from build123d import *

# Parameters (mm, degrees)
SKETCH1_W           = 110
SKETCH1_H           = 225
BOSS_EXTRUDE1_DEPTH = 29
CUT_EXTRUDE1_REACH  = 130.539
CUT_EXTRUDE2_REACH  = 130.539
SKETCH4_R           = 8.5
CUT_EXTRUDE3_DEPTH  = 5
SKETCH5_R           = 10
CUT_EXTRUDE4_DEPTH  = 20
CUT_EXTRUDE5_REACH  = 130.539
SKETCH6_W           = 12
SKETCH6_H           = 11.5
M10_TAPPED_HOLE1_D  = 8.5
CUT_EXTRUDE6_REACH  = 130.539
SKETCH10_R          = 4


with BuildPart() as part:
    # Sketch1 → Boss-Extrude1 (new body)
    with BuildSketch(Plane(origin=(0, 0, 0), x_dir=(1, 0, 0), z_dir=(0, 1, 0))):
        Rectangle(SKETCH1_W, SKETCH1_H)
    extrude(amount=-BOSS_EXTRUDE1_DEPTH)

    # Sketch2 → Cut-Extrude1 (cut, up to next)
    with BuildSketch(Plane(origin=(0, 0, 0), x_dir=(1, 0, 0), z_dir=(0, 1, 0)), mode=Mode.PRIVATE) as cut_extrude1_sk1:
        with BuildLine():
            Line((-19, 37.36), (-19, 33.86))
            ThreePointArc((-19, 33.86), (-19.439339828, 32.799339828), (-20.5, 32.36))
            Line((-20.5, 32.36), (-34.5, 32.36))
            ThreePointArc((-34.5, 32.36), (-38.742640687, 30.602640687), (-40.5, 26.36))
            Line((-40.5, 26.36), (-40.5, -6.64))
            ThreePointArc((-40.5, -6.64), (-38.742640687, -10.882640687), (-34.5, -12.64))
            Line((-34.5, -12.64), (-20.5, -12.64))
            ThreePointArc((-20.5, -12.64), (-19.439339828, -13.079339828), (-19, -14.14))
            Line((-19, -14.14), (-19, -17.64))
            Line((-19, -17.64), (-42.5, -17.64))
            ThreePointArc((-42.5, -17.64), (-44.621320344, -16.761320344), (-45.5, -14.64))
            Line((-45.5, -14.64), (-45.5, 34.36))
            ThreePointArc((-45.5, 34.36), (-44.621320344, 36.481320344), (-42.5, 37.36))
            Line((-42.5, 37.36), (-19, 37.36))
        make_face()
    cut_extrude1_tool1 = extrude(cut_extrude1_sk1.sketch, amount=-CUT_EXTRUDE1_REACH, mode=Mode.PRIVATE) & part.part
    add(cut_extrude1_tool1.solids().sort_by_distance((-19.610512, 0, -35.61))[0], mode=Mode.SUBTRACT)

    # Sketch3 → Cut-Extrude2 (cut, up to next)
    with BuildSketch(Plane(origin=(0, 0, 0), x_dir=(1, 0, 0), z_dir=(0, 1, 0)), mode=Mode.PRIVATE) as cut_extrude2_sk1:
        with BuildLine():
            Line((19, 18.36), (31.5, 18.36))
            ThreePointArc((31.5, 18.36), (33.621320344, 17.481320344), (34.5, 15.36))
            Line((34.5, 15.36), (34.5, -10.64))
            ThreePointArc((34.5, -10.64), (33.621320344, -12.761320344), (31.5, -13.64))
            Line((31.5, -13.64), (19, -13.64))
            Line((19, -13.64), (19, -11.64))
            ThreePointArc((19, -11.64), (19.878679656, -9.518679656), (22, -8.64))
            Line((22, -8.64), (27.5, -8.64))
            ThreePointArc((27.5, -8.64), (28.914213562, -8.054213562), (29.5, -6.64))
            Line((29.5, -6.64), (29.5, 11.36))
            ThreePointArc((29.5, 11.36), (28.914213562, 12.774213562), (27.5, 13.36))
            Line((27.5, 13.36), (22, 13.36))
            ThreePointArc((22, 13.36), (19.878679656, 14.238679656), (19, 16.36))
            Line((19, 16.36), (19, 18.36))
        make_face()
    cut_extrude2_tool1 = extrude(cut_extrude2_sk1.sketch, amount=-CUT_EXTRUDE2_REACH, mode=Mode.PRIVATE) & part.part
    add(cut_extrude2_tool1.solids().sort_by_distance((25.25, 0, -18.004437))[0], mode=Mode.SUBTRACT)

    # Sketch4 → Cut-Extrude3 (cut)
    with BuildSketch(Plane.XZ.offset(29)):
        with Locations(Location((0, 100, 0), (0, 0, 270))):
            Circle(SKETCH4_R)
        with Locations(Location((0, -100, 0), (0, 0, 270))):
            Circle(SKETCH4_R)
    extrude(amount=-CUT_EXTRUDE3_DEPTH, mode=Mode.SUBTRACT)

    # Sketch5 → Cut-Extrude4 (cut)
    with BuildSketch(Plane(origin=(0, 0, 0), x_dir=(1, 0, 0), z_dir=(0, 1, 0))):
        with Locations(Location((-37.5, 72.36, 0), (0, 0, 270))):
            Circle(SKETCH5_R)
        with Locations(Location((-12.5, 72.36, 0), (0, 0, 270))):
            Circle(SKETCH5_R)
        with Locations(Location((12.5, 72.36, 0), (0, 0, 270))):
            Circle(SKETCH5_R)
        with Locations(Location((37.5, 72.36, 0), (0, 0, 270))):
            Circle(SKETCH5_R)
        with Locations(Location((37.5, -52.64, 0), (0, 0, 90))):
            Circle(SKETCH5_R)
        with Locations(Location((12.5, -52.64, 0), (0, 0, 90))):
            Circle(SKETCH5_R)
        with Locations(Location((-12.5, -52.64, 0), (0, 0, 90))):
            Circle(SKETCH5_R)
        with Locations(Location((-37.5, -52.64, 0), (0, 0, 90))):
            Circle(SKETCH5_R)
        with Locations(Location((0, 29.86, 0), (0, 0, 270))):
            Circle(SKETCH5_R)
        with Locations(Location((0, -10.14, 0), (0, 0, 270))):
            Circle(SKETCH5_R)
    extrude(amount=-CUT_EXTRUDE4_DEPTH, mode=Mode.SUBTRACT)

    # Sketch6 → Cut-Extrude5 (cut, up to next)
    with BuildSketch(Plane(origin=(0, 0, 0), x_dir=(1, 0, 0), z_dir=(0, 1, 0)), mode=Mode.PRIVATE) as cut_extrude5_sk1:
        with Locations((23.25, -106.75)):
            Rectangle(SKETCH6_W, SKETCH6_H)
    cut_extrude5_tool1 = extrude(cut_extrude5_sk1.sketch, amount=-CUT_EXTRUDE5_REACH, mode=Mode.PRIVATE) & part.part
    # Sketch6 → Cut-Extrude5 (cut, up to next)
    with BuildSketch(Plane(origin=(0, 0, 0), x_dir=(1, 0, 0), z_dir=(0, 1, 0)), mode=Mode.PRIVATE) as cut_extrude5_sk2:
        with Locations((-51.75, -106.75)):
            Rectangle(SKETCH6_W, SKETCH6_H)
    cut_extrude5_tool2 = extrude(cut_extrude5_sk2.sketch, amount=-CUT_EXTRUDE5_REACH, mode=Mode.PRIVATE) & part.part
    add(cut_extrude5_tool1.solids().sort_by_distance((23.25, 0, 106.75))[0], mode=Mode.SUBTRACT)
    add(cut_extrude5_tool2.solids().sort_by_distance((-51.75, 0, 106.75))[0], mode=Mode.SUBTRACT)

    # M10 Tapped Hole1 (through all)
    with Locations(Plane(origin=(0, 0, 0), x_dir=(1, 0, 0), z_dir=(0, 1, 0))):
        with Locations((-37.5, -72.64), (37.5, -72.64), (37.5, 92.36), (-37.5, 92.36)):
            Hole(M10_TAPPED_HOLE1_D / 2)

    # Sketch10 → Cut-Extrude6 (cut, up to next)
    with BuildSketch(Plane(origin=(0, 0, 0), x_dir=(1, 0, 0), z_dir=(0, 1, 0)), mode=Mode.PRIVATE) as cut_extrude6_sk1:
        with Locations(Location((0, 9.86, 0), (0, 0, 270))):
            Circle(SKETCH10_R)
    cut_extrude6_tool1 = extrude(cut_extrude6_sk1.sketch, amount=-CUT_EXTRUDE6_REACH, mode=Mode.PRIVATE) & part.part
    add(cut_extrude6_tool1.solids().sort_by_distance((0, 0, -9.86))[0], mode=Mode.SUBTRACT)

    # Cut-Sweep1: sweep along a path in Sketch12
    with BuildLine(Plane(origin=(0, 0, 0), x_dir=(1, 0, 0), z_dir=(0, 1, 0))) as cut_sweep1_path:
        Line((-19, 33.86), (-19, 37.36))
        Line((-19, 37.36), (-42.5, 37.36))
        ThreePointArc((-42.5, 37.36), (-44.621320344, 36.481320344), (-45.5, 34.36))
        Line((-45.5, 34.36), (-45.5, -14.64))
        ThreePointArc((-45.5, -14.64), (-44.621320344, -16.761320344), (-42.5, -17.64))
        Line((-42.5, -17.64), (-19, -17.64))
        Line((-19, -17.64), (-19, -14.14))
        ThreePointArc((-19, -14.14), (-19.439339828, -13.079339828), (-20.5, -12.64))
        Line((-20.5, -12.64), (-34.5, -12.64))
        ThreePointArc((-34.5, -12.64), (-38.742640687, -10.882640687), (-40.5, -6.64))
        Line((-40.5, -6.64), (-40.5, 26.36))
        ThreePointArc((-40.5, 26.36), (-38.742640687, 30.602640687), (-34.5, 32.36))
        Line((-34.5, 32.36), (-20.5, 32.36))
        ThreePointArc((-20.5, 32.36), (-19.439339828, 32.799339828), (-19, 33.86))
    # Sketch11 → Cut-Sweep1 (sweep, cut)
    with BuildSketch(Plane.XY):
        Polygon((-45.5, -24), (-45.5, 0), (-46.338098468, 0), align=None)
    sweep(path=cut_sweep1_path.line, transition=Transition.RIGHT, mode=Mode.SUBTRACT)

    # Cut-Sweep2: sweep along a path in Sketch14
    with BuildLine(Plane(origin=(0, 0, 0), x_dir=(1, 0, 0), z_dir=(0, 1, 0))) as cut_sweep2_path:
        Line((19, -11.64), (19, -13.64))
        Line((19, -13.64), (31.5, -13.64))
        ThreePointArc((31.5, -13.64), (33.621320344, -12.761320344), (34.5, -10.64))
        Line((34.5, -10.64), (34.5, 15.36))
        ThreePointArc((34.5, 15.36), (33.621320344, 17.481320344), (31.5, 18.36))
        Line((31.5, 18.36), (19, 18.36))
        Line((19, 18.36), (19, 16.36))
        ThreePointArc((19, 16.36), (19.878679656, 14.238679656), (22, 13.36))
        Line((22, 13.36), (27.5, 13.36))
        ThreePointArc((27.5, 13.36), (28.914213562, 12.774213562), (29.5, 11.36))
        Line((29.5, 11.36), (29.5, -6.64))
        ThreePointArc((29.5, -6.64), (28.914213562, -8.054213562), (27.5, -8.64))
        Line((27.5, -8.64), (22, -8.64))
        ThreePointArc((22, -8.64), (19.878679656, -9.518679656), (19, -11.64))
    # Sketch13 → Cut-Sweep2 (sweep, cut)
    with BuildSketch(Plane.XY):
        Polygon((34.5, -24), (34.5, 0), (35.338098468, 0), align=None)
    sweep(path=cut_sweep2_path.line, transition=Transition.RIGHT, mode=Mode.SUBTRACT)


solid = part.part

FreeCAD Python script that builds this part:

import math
import FreeCAD as App
import Part
import Sketcher
from FreeCAD import Vector
Q = App.Units.Quantity


def add_polygon(sketch, points):
    """Adds a closed chain of lines whose ends are joined by coincident constraints."""
    first, n = sketch.GeometryCount, len(points)
    for a, b in zip(points, points[1:] + points[:1]):
        sketch.addGeometry(Part.LineSegment(App.Vector(*a, 0), App.Vector(*b, 0)), False)
    for i in range(n):
        sketch.addConstraint(Sketcher.Constraint("Coincident", first + i, 2, first + (i + 1) % n, 1))

doc = App.newDocument("Part")
body = doc.addObject("PartDesign::Body", "Body")

sketch1 = doc.addObject("Sketcher::SketchObject", "Sketch")
body.addObject(sketch1)
sketch1.AttachmentSupport = (doc.XZ_Plane, [""])
sketch1.MapMode = "FlatFace"
add_polygon(sketch1, [(-55, -112), (-55, 112), (55, 112), (55, -112)])
sketch1.addConstraint(Sketcher.Constraint("Vertical", 0))
sketch1.addConstraint(Sketcher.Constraint("Horizontal", 1))
sketch1.addConstraint(Sketcher.Constraint("Vertical", 2))
sketch1.addConstraint(Sketcher.Constraint("Horizontal", 3))
sketch1.addConstraint(Sketcher.Constraint("Symmetric", 0, 2, 2, 2, -1, 1))
sketch1.addConstraint(Sketcher.Constraint("DistanceX", 1, 1, 1, 2, 110.0))
sketch1.addConstraint(Sketcher.Constraint("DistanceY", 0, 1, 0, 2, 225.0))
pad1 = doc.addObject("PartDesign::Pad", "Pad")
body.addObject(pad1)
pad1.Profile = sketch1
pad1.Length = 29

sketch2 = doc.addObject("Sketcher::SketchObject", "Sketch001")
body.addObject(sketch2)
sketch2.AttachmentSupport = (doc.XZ_Plane, [""])
sketch2.MapMode = "FlatFace"
sketch2.addGeometry(Part.LineSegment(Vector(-19, -33.9, 0), Vector(-19, -37.4, 0)), False)
sketch2.addGeometry(Part.LineSegment(Vector(-19, -37.4, 0), Vector(-42.5, -37.4, 0)), False)
sketch2.addGeometry(Part.ArcOfCircle(Part.Circle(Vector(-42.5, -34.4, 0), Vector(0, 0, 1), 3), math.radians(180), math.radians(270)), False)
sketch2.addGeometry(Part.LineSegment(Vector(-45.5, -34.4, 0), Vector(-45.5, 14.6, 0)), False)
sketch2.addGeometry(Part.ArcOfCircle(Part.Circle(Vector(-42.5, 14.6, 0), Vector(0, 0, 1), 3), math.radians(90), math.radians(180)), False)
sketch2.addGeometry(Part.LineSegment(Vector(-42.5, 17.6, 0), Vector(-19, 17.6, 0)), False)
sketch2.addGeometry(Part.LineSegment(Vector(-19, 17.6, 0), Vector(-19, 14.1, 0)), False)
sketch2.addGeometry(Part.ArcOfCircle(Part.Circle(Vector(-20.5, 14.1, 0), Vector(0, 0, 1), 1.5), math.radians(-90), math.radians(0)), False)
sketch2.addGeometry(Part.LineSegment(Vector(-20.5, 12.6, 0), Vector(-34.5, 12.6, 0)), False)
sketch2.addGeometry(Part.ArcOfCircle(Part.Circle(Vector(-34.5, 6.6, 0), Vector(0, 0, 1), 6), math.radians(90), math.radians(180)), False)
sketch2.addGeometry(Part.LineSegment(Vector(-40.5, 6.6, 0), Vector(-40.5, -26.4, 0)), False)
sketch2.addGeometry(Part.ArcOfCircle(Part.Circle(Vector(-34.5, -26.4, 0), Vector(0, 0, 1), 6), math.radians(180), math.radians(270)), False)
sketch2.addGeometry(Part.LineSegment(Vector(-34.5, -32.4, 0), Vector(-20.5, -32.4, 0)), False)
sketch2.addGeometry(Part.ArcOfCircle(Part.Circle(Vector(-20.5, -33.9, 0), Vector(0, 0, 1), 1.5), math.radians(0), math.radians(90)), False)
sketch2.addConstraint(Sketcher.Constraint("Coincident", 0, 2, 1, 1))
sketch2.addConstraint(Sketcher.Constraint("Tangent", 1, 2, 2, 2))
sketch2.addConstraint(Sketcher.Constraint("Tangent", 2, 1, 3, 1))
sketch2.addConstraint(Sketcher.Constraint("Tangent", 3, 2, 4, 2))
sketch2.addConstraint(Sketcher.Constraint("Tangent", 4, 1, 5, 1))
sketch2.addConstraint(Sketcher.Constraint("Coincident", 5, 2, 6, 1))
sketch2.addConstraint(Sketcher.Constraint("Tangent", 6, 2, 7, 2))
sketch2.addConstraint(Sketcher.Constraint("Tangent", 7, 1, 8, 1))
sketch2.addConstraint(Sketcher.Constraint("Tangent", 8, 2, 9, 1))
sketch2.addConstraint(Sketcher.Constraint("Tangent", 9, 2, 10, 1))
sketch2.addConstraint(Sketcher.Constraint("Tangent", 10, 2, 11, 1))
sketch2.addConstraint(Sketcher.Constraint("Tangent", 11, 2, 12, 1))
sketch2.addConstraint(Sketcher.Constraint("Tangent", 12, 2, 13, 2))
sketch2.addConstraint(Sketcher.Constraint("Tangent", 13, 1, 0, 1))
sketch2.addConstraint(Sketcher.Constraint("Vertical", 0))
sketch2.addConstraint(Sketcher.Constraint("Horizontal", 1))
sketch2.addConstraint(Sketcher.Constraint("Vertical", 3))
sketch2.addConstraint(Sketcher.Constraint("Horizontal", 5))
sketch2.addConstraint(Sketcher.Constraint("Vertical", 6))
sketch2.addConstraint(Sketcher.Constraint("Horizontal", 8))
sketch2.addConstraint(Sketcher.Constraint("Vertical", 10))
sketch2.addConstraint(Sketcher.Constraint("Horizontal", 12))
sketch2.addConstraint(Sketcher.Constraint("Equal", 2, 4))
sketch2.addConstraint(Sketcher.Constraint("Equal", 9, 11))
sketch2.addConstraint(Sketcher.Constraint("Equal", 7, 13))
sketch2.addConstraint(Sketcher.Constraint("Vertical", 7, 3, 13, 3))
sketch2.addConstraint(Sketcher.Constraint("Equal", 0, 6))
sketch2.addConstraint(Sketcher.Constraint("Radius", 2, 3.0))
sketch2.addConstraint(Sketcher.Constraint("Radius", 9, 6.0))
sketch2.addConstraint(Sketcher.Constraint("Radius", 7, 1.5))
sketch2.addConstraint(Sketcher.Constraint("DistanceX", 8, 2, 8, 1, 14.0))
sketch2.addConstraint(Sketcher.Constraint("DistanceY", 3, 1, 3, 2, 49.0))
sketch2.addConstraint(Sketcher.Constraint("DistanceY", 10, 2, 10, 1, 33.0))
sketch2.addConstraint(Sketcher.Constraint("DistanceX", 1, 2, 1, 1, 23.5))
sketch2.addConstraint(Sketcher.Constraint("DistanceX", 0, 2, -1, 1, 19.0))
sketch2.addConstraint(Sketcher.Constraint("DistanceY", 2, 3, -1, 1, 34.36))
pocket1 = doc.addObject("PartDesign::Pocket", "Pocket")
body.addObject(pocket1)
pocket1.Profile = sketch2
pocket1.Type = "UpToFirst"
pocket1.Reversed = True

sketch3 = doc.addObject("Sketcher::SketchObject", "Sketch002")
body.addObject(sketch3)
sketch3.AttachmentSupport = (doc.XZ_Plane, [""])
sketch3.MapMode = "FlatFace"
sketch3.addGeometry(Part.LineSegment(Vector(31.5, -18.4, 0), Vector(19, -18.4, 0)), False)
sketch3.addGeometry(Part.LineSegment(Vector(19, -18.4, 0), Vector(19, -16.4, 0)), False)
sketch3.addGeometry(Part.ArcOfCircle(Part.Circle(Vector(22, -16.4, 0), Vector(0, 0, 1), 3), math.radians(90), math.radians(180)), False)
sketch3.addGeometry(Part.LineSegment(Vector(22, -13.4, 0), Vector(27.5, -13.4, 0)), False)
sketch3.addGeometry(Part.ArcOfCircle(Part.Circle(Vector(27.5, -11.4, 0), Vector(0, 0, 1), 2), math.radians(-90), math.radians(0)), False)
sketch3.addGeometry(Part.LineSegment(Vector(29.5, -11.4, 0), Vector(29.5, 6.6, 0)), False)
sketch3.addGeometry(Part.ArcOfCircle(Part.Circle(Vector(27.5, 6.6, 0), Vector(0, 0, 1), 2), math.radians(0), math.radians(90)), False)
sketch3.addGeometry(Part.LineSegment(Vector(27.5, 8.6, 0), Vector(22, 8.6, 0)), False)
sketch3.addGeometry(Part.ArcOfCircle(Part.Circle(Vector(22, 11.6, 0), Vector(0, 0, 1), 3), math.radians(180), math.radians(270)), False)
sketch3.addGeometry(Part.LineSegment(Vector(19, 11.6, 0), Vector(19, 13.6, 0)), False)
sketch3.addGeometry(Part.LineSegment(Vector(19, 13.6, 0), Vector(31.5, 13.6, 0)), False)
sketch3.addGeometry(Part.ArcOfCircle(Part.Circle(Vector(31.5, 10.6, 0), Vector(0, 0, 1), 3), math.radians(0), math.radians(90)), False)
sketch3.addGeometry(Part.LineSegment(Vector(34.5, 10.6, 0), Vector(34.5, -15.4, 0)), False)
sketch3.addGeometry(Part.ArcOfCircle(Part.Circle(Vector(31.5, -15.4, 0), Vector(0, 0, 1), 3), math.radians(-90), math.radians(0)), False)
sketch3.addConstraint(Sketcher.Constraint("Coincident", 0, 2, 1, 1))
sketch3.addConstraint(Sketcher.Constraint("Tangent", 1, 2, 2, 2))
sketch3.addConstraint(Sketcher.Constraint("Tangent", 2, 1, 3, 1))
sketch3.addConstraint(Sketcher.Constraint("Tangent", 3, 2, 4, 1))
sketch3.addConstraint(Sketcher.Constraint("Tangent", 4, 2, 5, 1))
sketch3.addConstraint(Sketcher.Constraint("Tangent", 5, 2, 6, 1))
sketch3.addConstraint(Sketcher.Constraint("Tangent", 6, 2, 7, 1))
sketch3.addConstraint(Sketcher.Constraint("Tangent", 7, 2, 8, 2))
sketch3.addConstraint(Sketcher.Constraint("Tangent", 8, 1, 9, 1))
sketch3.addConstraint(Sketcher.Constraint("Coincident", 9, 2, 10, 1))
sketch3.addConstraint(Sketcher.Constraint("Tangent", 10, 2, 11, 2))
sketch3.addConstraint(Sketcher.Constraint("Tangent", 11, 1, 12, 1))
sketch3.addConstraint(Sketcher.Constraint("Tangent", 12, 2, 13, 2))
sketch3.addConstraint(Sketcher.Constraint("Tangent", 13, 1, 0, 1))
sketch3.addConstraint(Sketcher.Constraint("Horizontal", 0))
sketch3.addConstraint(Sketcher.Constraint("Vertical", 1))
sketch3.addConstraint(Sketcher.Constraint("Horizontal", 3))
sketch3.addConstraint(Sketcher.Constraint("Vertical", 5))
sketch3.addConstraint(Sketcher.Constraint("Horizontal", 7))
sketch3.addConstraint(Sketcher.Constraint("Vertical", 9))
sketch3.addConstraint(Sketcher.Constraint("Horizontal", 10))
sketch3.addConstraint(Sketcher.Constraint("Vertical", 12))
sketch3.addConstraint(Sketcher.Constraint("Equal", 4, 6))
sketch3.addConstraint(Sketcher.Constraint("Equal", 2, 8))
sketch3.addConstraint(Sketcher.Constraint("Equal", 8, 11))
sketch3.addConstraint(Sketcher.Constraint("Equal", 11, 13))
sketch3.addConstraint(Sketcher.Constraint("Vertical", 2, 3, 8, 3))
sketch3.addConstraint(Sketcher.Constraint("Equal", 1, 9))
sketch3.addConstraint(Sketcher.Constraint("Radius", 2, 3.0))
sketch3.addConstraint(Sketcher.Constraint("Radius", 4, 2.0))
sketch3.addConstraint(Sketcher.Constraint("DistanceY", 1, 1, 1, 2, 2.0))
sketch3.addConstraint(Sketcher.Constraint("DistanceY", 5, 1, 5, 2, 18.0))
sketch3.addConstraint(Sketcher.Constraint("DistanceX", 0, 2, 0, 1, 12.5))
sketch3.addConstraint(Sketcher.Constraint("DistanceX", 3, 1, 3, 2, 5.5))
sketch3.addConstraint(Sketcher.Constraint("DistanceX", -1, 1, 2, 3, 22.0))
sketch3.addConstraint(Sketcher.Constraint("DistanceY", 2, 3, -1, 1, 16.36))
pocket2 = doc.addObject("PartDesign::Pocket", "Pocket001")
body.addObject(pocket2)
pocket2.Profile = sketch3
pocket2.Type = "UpToFirst"
pocket2.Reversed = True

sketch4 = doc.addObject("Sketcher::SketchObject", "Sketch003")
body.addObject(sketch4)
sketch4.AttachmentSupport = (doc.XZ_Plane, [""])
sketch4.MapMode = "FlatFace"
sketch4.AttachmentOffset = App.Placement(Vector(0, 0, 29), App.Rotation())
sketch4.addGeometry(Part.Circle(Vector(0, 100, 0), Vector(0, 0, 1), 8), False)
sketch4.addGeometry(Part.Circle(Vector(0, -100, 0), Vector(0, 0, 1), 8), False)
sketch4.addConstraint(Sketcher.Constraint("Equal", 0, 1))
sketch4.addConstraint(Sketcher.Constraint("Symmetric", 0, 3, 1, 3, -1, 1))
sketch4.addConstraint(Sketcher.Constraint("PointOnObject", 0, 3, -2))
sketch4.addConstraint(Sketcher.Constraint("Diameter", 0, 17.0))
sketch4.addConstraint(Sketcher.Constraint("DistanceY", -1, 1, 0, 3, 100.0))
pocket3 = doc.addObject("PartDesign::Pocket", "Pocket002")
body.addObject(pocket3)
pocket3.Profile = sketch4
pocket3.Length = 5

sketch5 = doc.addObject("Sketcher::SketchObject", "Sketch004")
body.addObject(sketch5)
sketch5.AttachmentSupport = (doc.XZ_Plane, [""])
sketch5.MapMode = "FlatFace"
sketch5.addGeometry(Part.Circle(Vector(-38, -72, 0), Vector(0, 0, 1), 10), False)
sketch5.addGeometry(Part.Circle(Vector(-12, -72, 0), Vector(0, 0, 1), 10), False)
sketch5.addGeometry(Part.Circle(Vector(12, -72, 0), Vector(0, 0, 1), 10), False)
sketch5.addGeometry(Part.Circle(Vector(38, -72, 0), Vector(0, 0, 1), 10), False)
sketch5.addGeometry(Part.Circle(Vector(38, 53, 0), Vector(0, 0, 1), 10), False)
sketch5.addGeometry(Part.Circle(Vector(12, 53, 0), Vector(0, 0, 1), 10), False)
sketch5.addGeometry(Part.Circle(Vector(-12, 53, 0), Vector(0, 0, 1), 10), False)
sketch5.addGeometry(Part.Circle(Vector(-38, 53, 0), Vector(0, 0, 1), 10), False)
sketch5.addGeometry(Part.Circle(Vector(0, -30, 0), Vector(0, 0, 1), 10), False)
sketch5.addGeometry(Part.Circle(Vector(0, 10, 0), Vector(0, 0, 1), 10), False)
sketch5.addConstraint(Sketcher.Constraint("Equal", 0, 1))
sketch5.addConstraint(Sketcher.Constraint("Equal", 1, 2))
sketch5.addConstraint(Sketcher.Constraint("Equal", 2, 3))
sketch5.addConstraint(Sketcher.Constraint("Equal", 3, 4))
sketch5.addConstraint(Sketcher.Constraint("Equal", 4, 5))
sketch5.addConstraint(Sketcher.Constraint("Equal", 5, 6))
sketch5.addConstraint(Sketcher.Constraint("Equal", 6, 7))
sketch5.addConstraint(Sketcher.Constraint("Equal", 7, 8))
sketch5.addConstraint(Sketcher.Constraint("Equal", 8, 9))
sketch5.addConstraint(Sketcher.Constraint("Symmetric", 1, 3, 2, 3, -2))
sketch5.addConstraint(Sketcher.Constraint("Symmetric", 0, 3, 3, 3, -2))
sketch5.addConstraint(Sketcher.Constraint("Symmetric", 5, 3, 6, 3, -2))
sketch5.addConstraint(Sketcher.Constraint("Symmetric", 4, 3, 7, 3, -2))
sketch5.addConstraint(Sketcher.Constraint("PointOnObject", 8, 3, -2))
sketch5.addConstraint(Sketcher.Constraint("PointOnObject", 9, 3, -2))
sketch5.addConstraint(Sketcher.Constraint("Horizontal", 0, 3, 1, 3))
sketch5.addConstraint(Sketcher.Constraint("Horizontal", 4, 3, 5, 3))
sketch5.addConstraint(Sketcher.Constraint("Vertical", 3, 3, 4, 3))
sketch5.addConstraint(Sketcher.Constraint("Vertical", 2, 3, 5, 3))
sketch5.addConstraint(Sketcher.Constraint("Diameter", 0, 20.0))
sketch5.addConstraint(Sketcher.Constraint("DistanceX", 0, 3, 1, 3, 25.0))
sketch5.addConstraint(Sketcher.Constraint("DistanceX", 1, 3, 2, 3, 25.0))
sketch5.addConstraint(Sketcher.Constraint("DistanceY", 3, 3, 4, 3, 125.0))
sketch5.addConstraint(Sketcher.Constraint("DistanceY", 8, 3, 9, 3, 40.0))
sketch5.addConstraint(Sketcher.Constraint("DistanceY", 1, 3, 8, 3, 42.5))
sketch5.addConstraint(Sketcher.Constraint("DistanceY", 0, 3, -1, 1, 72.36))
pocket4 = doc.addObject("PartDesign::Pocket", "Pocket003")
body.addObject(pocket4)
pocket4.Profile = sketch5
pocket4.Length = 20
pocket4.Reversed = True

sketch6 = doc.addObject("Sketcher::SketchObject", "Sketch005")
body.addObject(sketch6)
sketch6.AttachmentSupport = (doc.XZ_Plane, [""])
sketch6.MapMode = "FlatFace"
add_polygon(sketch6, [(17, 101), (17, 112), (29, 112), (29, 101)])
sketch6.addConstraint(Sketcher.Constraint("Vertical", 0))
sketch6.addConstraint(Sketcher.Constraint("Horizontal", 1))
sketch6.addConstraint(Sketcher.Constraint("Vertical", 2))
sketch6.addConstraint(Sketcher.Constraint("Horizontal", 3))
sketch6.addConstraint(Sketcher.Constraint("DistanceX", 1, 1, 1, 2, 12.0))
sketch6.addConstraint(Sketcher.Constraint("DistanceY", 0, 1, 0, 2, 11.5))
sketch6.addConstraint(Sketcher.Constraint("DistanceY", -1, 1, 2, 2, 101.0))
sketch6.addConstraint(Sketcher.Constraint("DistanceX", -1, 1, 0, 2, 17.25))
pocket5 = doc.addObject("PartDesign::Pocket", "Pocket004")
body.addObject(pocket5)
pocket5.Profile = sketch6
pocket5.Type = "UpToFirst"
pocket5.Reversed = True

sketch7 = doc.addObject("Sketcher::SketchObject", "Sketch006")
body.addObject(sketch7)
sketch7.AttachmentSupport = (doc.XZ_Plane, [""])
sketch7.MapMode = "FlatFace"
add_polygon(sketch7, [(-58, 101), (-58, 112), (-46, 112), (-46, 101)])
sketch7.addConstraint(Sketcher.Constraint("Vertical", 0))
sketch7.addConstraint(Sketcher.Constraint("Horizontal", 1))
sketch7.addConstraint(Sketcher.Constraint("Vertical", 2))
sketch7.addConstraint(Sketcher.Constraint("Horizontal", 3))
sketch7.addConstraint(Sketcher.Constraint("DistanceX", 1, 1, 1, 2, 12.0))
sketch7.addConstraint(Sketcher.Constraint("DistanceY", 0, 1, 0, 2, 11.5))
sketch7.addConstraint(Sketcher.Constraint("DistanceY", -1, 1, 2, 2, 101.0))
sketch7.addConstraint(Sketcher.Constraint("DistanceX", 0, 2, -1, 1, 57.75))
pocket6 = doc.addObject("PartDesign::Pocket", "Pocket005")
body.addObject(pocket6)
pocket6.Profile = sketch7
pocket6.Type = "UpToFirst"
pocket6.Reversed = True

sketch8 = doc.addObject("Sketcher::SketchObject", "Sketch007")
body.addObject(sketch8)
sketch8.AttachmentSupport = (doc.XZ_Plane, [""])
sketch8.MapMode = "FlatFace"
sketch8.addGeometry(Part.Circle(Vector(-37.5, 72.6, 0), Vector(0, 0, 1), 4.2), False)
sketch8.addGeometry(Part.Circle(Vector(37.5, 72.6, 0), Vector(0, 0, 1), 4.2), False)
sketch8.addGeometry(Part.Circle(Vector(37.5, -92.4, 0), Vector(0, 0, 1), 4.2), False)
sketch8.addGeometry(Part.Circle(Vector(-37.5, -92.4, 0), Vector(0, 0, 1), 4.2), False)
sketch8.addConstraint(Sketcher.Constraint("Equal", 0, 1))
sketch8.addConstraint(Sketcher.Constraint("Equal", 1, 2))
sketch8.addConstraint(Sketcher.Constraint("Equal", 2, 3))
sketch8.addConstraint(Sketcher.Constraint("Symmetric", 0, 3, 1, 3, -2))
sketch8.addConstraint(Sketcher.Constraint("Symmetric", 2, 3, 3, 3, -2))
sketch8.addConstraint(Sketcher.Constraint("Vertical", 1, 3, 2, 3))
sketch8.addConstraint(Sketcher.Constraint("Diameter", 0, 8.5))
sketch8.addConstraint(Sketcher.Constraint("DistanceX", 0, 3, 1, 3, 75.0))
sketch8.addConstraint(Sketcher.Constraint("DistanceY", 2, 3, 1, 3, 165.0))
sketch8.addConstraint(Sketcher.Constraint("DistanceY", -1, 1, 0, 3, 72.64))
doc.recompute()
hole = doc.addObject("PartDesign::Hole", "Hole")
body.addObject(hole)
hole.Profile = sketch8
hole.ThreadType = "None"
hole.Diameter = 8.5
hole.DepthType = "ThroughAll"
hole.Reversed = True

sketch9 = doc.addObject("Sketcher::SketchObject", "Sketch008")
body.addObject(sketch9)
sketch9.AttachmentSupport = (doc.XZ_Plane, [""])
sketch9.MapMode = "FlatFace"
sketch9.addGeometry(Part.Circle(Vector(0, -9.9, 0), Vector(0, 0, 1), 4), False)
sketch9.addConstraint(Sketcher.Constraint("PointOnObject", 0, 3, -2))
sketch9.addConstraint(Sketcher.Constraint("Diameter", 0, 8.0))
sketch9.addConstraint(Sketcher.Constraint("DistanceY", 0, 3, -1, 1, 9.86))
pocket7 = doc.addObject("PartDesign::Pocket", "Pocket006")
body.addObject(pocket7)
pocket7.Profile = sketch9
pocket7.Type = "UpToFirst"
pocket7.Reversed = True

sketch10 = doc.addObject("Sketcher::SketchObject", "Sketch009")
body.addObject(sketch10)
sketch10.AttachmentSupport = (doc.XY_Plane, [""])
sketch10.MapMode = "FlatFace"
add_polygon(sketch10, [(-45.5, -24), (-45.5, 0), (-46.3, 0)])
sketch10.addConstraint(Sketcher.Constraint("Vertical", 0))
sketch10.addConstraint(Sketcher.Constraint("Horizontal", 1))
sketch10.addConstraint(Sketcher.Constraint("PointOnObject", 0, 2, -1))
sketch10.addConstraint(Sketcher.Constraint("DistanceY", 0, 1, 0, 2, 24.0))
sketch10.addConstraint(Sketcher.Constraint("Angle", 2, Q("-88 deg")))
sketch10.addConstraint(Sketcher.Constraint("DistanceX", 0, 2, -1, 1, 45.5))

sketch11 = doc.addObject("Sketcher::SketchObject", "Sketch010")
body.addObject(sketch11)
sketch11.AttachmentSupport = (doc.XZ_Plane, [""])
sketch11.MapMode = "FlatFace"
sketch11.addGeometry(Part.LineSegment(Vector(-19, -33.9, 0), Vector(-19, -37.4, 0)), False)
sketch11.addGeometry(Part.LineSegment(Vector(-19, -37.4, 0), Vector(-42.5, -37.4, 0)), False)
sketch11.addGeometry(Part.ArcOfCircle(Part.Circle(Vector(-42.5, -34.4, 0), Vector(0, 0, 1), 3), math.radians(180), math.radians(270)), False)
sketch11.addGeometry(Part.LineSegment(Vector(-45.5, -34.4, 0), Vector(-45.5, 14.6, 0)), False)
sketch11.addGeometry(Part.ArcOfCircle(Part.Circle(Vector(-42.5, 14.6, 0), Vector(0, 0, 1), 3), math.radians(90), math.radians(180)), False)
sketch11.addGeometry(Part.LineSegment(Vector(-42.5, 17.6, 0), Vector(-19, 17.6, 0)), False)
sketch11.addGeometry(Part.LineSegment(Vector(-19, 17.6, 0), Vector(-19, 14.1, 0)), False)
sketch11.addGeometry(Part.ArcOfCircle(Part.Circle(Vector(-20.5, 14.1, 0), Vector(0, 0, 1), 1.5), math.radians(-90), math.radians(0)), False)
sketch11.addGeometry(Part.LineSegment(Vector(-20.5, 12.6, 0), Vector(-34.5, 12.6, 0)), False)
sketch11.addGeometry(Part.ArcOfCircle(Part.Circle(Vector(-34.5, 6.6, 0), Vector(0, 0, 1), 6), math.radians(90), math.radians(180)), False)
sketch11.addGeometry(Part.LineSegment(Vector(-40.5, 6.6, 0), Vector(-40.5, -26.4, 0)), False)
sketch11.addGeometry(Part.ArcOfCircle(Part.Circle(Vector(-34.5, -26.4, 0), Vector(0, 0, 1), 6), math.radians(180), math.radians(270)), False)
sketch11.addGeometry(Part.LineSegment(Vector(-34.5, -32.4, 0), Vector(-20.5, -32.4, 0)), False)
sketch11.addGeometry(Part.ArcOfCircle(Part.Circle(Vector(-20.5, -33.9, 0), Vector(0, 0, 1), 1.5), math.radians(0), math.radians(90)), False)
sketch11.addConstraint(Sketcher.Constraint("Coincident", 0, 2, 1, 1))
sketch11.addConstraint(Sketcher.Constraint("Tangent", 1, 2, 2, 2))
sketch11.addConstraint(Sketcher.Constraint("Tangent", 2, 1, 3, 1))
sketch11.addConstraint(Sketcher.Constraint("Tangent", 3, 2, 4, 2))
sketch11.addConstraint(Sketcher.Constraint("Tangent", 4, 1, 5, 1))
sketch11.addConstraint(Sketcher.Constraint("Coincident", 5, 2, 6, 1))
sketch11.addConstraint(Sketcher.Constraint("Tangent", 6, 2, 7, 2))
sketch11.addConstraint(Sketcher.Constraint("Tangent", 7, 1, 8, 1))
sketch11.addConstraint(Sketcher.Constraint("Tangent", 8, 2, 9, 1))
sketch11.addConstraint(Sketcher.Constraint("Tangent", 9, 2, 10, 1))
sketch11.addConstraint(Sketcher.Constraint("Tangent", 10, 2, 11, 1))
sketch11.addConstraint(Sketcher.Constraint("Tangent", 11, 2, 12, 1))
sketch11.addConstraint(Sketcher.Constraint("Tangent", 12, 2, 13, 2))
sketch11.addConstraint(Sketcher.Constraint("Tangent", 13, 1, 0, 1))
sketch11.addConstraint(Sketcher.Constraint("Vertical", 0))
sketch11.addConstraint(Sketcher.Constraint("Horizontal", 1))
sketch11.addConstraint(Sketcher.Constraint("Vertical", 3))
sketch11.addConstraint(Sketcher.Constraint("Horizontal", 5))
sketch11.addConstraint(Sketcher.Constraint("Vertical", 6))
sketch11.addConstraint(Sketcher.Constraint("Horizontal", 8))
sketch11.addConstraint(Sketcher.Constraint("Vertical", 10))
sketch11.addConstraint(Sketcher.Constraint("Horizontal", 12))
sketch11.addConstraint(Sketcher.Constraint("Equal", 2, 4))
sketch11.addConstraint(Sketcher.Constraint("Equal", 9, 11))
sketch11.addConstraint(Sketcher.Constraint("Equal", 7, 13))
sketch11.addConstraint(Sketcher.Constraint("Vertical", 7, 3, 13, 3))
sketch11.addConstraint(Sketcher.Constraint("Equal", 0, 6))
sketch11.addConstraint(Sketcher.Constraint("Radius", 2, 3.0))
sketch11.addConstraint(Sketcher.Constraint("Radius", 9, 6.0))
sketch11.addConstraint(Sketcher.Constraint("Radius", 7, 1.5))
sketch11.addConstraint(Sketcher.Constraint("DistanceX", 8, 2, 8, 1, 14.0))
sketch11.addConstraint(Sketcher.Constraint("DistanceY", 3, 1, 3, 2, 49.0))
sketch11.addConstraint(Sketcher.Constraint("DistanceY", 10, 2, 10, 1, 33.0))
sketch11.addConstraint(Sketcher.Constraint("DistanceX", 1, 2, 1, 1, 23.5))
sketch11.addConstraint(Sketcher.Constraint("DistanceX", 0, 2, -1, 1, 19.0))
sketch11.addConstraint(Sketcher.Constraint("DistanceY", 2, 3, -1, 1, 34.36))
doc.recompute()

subtractivepipe = doc.addObject("PartDesign::SubtractivePipe", "SubtractivePipe")
body.addObject(subtractivepipe)
subtractivepipe.Profile = sketch10
subtractivepipe.Spine = (sketch11, ["Edge1", "Edge2", "Edge3", "Edge4", "Edge5", "Edge6", "Edge7", "Edge8", "Edge9", "Edge10", "Edge11", "Edge12", "Edge13", "Edge14"])
subtractivepipe.Transition = "Right corner"

sketch12 = doc.addObject("Sketcher::SketchObject", "Sketch011")
body.addObject(sketch12)
sketch12.AttachmentSupport = (doc.XY_Plane, [""])
sketch12.MapMode = "FlatFace"
add_polygon(sketch12, [(34.5, 0), (34.5, -24), (35.3, 0)])
sketch12.addConstraint(Sketcher.Constraint("Vertical", 0))
sketch12.addConstraint(Sketcher.Constraint("Horizontal", 2))
sketch12.addConstraint(Sketcher.Constraint("PointOnObject", 1, 2, -1))
sketch12.addConstraint(Sketcher.Constraint("DistanceY", 0, 2, 0, 1, 24.0))
sketch12.addConstraint(Sketcher.Constraint("Angle", 1, Q("88 deg")))
sketch12.addConstraint(Sketcher.Constraint("DistanceX", -1, 1, 0, 2, 34.5))

sketch13 = doc.addObject("Sketcher::SketchObject", "Sketch012")
body.addObject(sketch13)
sketch13.AttachmentSupport = (doc.XZ_Plane, [""])
sketch13.MapMode = "FlatFace"
sketch13.addGeometry(Part.LineSegment(Vector(19, 11.6, 0), Vector(19, 13.6, 0)), False)
sketch13.addGeometry(Part.LineSegment(Vector(19, 13.6, 0), Vector(31.5, 13.6, 0)), False)
sketch13.addGeometry(Part.ArcOfCircle(Part.Circle(Vector(31.5, 10.6, 0), Vector(0, 0, 1), 3), math.radians(0), math.radians(90)), False)
sketch13.addGeometry(Part.LineSegment(Vector(34.5, 10.6, 0), Vector(34.5, -15.4, 0)), False)
sketch13.addGeometry(Part.ArcOfCircle(Part.Circle(Vector(31.5, -15.4, 0), Vector(0, 0, 1), 3), math.radians(-90), math.radians(0)), False)
sketch13.addGeometry(Part.LineSegment(Vector(31.5, -18.4, 0), Vector(19, -18.4, 0)), False)
sketch13.addGeometry(Part.LineSegment(Vector(19, -18.4, 0), Vector(19, -16.4, 0)), False)
sketch13.addGeometry(Part.ArcOfCircle(Part.Circle(Vector(22, -16.4, 0), Vector(0, 0, 1), 3), math.radians(90), math.radians(180)), False)
sketch13.addGeometry(Part.LineSegment(Vector(22, -13.4, 0), Vector(27.5, -13.4, 0)), False)
sketch13.addGeometry(Part.ArcOfCircle(Part.Circle(Vector(27.5, -11.4, 0), Vector(0, 0, 1), 2), math.radians(-90), math.radians(0)), False)
sketch13.addGeometry(Part.LineSegment(Vector(29.5, -11.4, 0), Vector(29.5, 6.6, 0)), False)
sketch13.addGeometry(Part.ArcOfCircle(Part.Circle(Vector(27.5, 6.6, 0), Vector(0, 0, 1), 2), math.radians(0), math.radians(90)), False)
sketch13.addGeometry(Part.LineSegment(Vector(27.5, 8.6, 0), Vector(22, 8.6, 0)), False)
sketch13.addGeometry(Part.ArcOfCircle(Part.Circle(Vector(22, 11.6, 0), Vector(0, 0, 1), 3), math.radians(180), math.radians(270)), False)
sketch13.addConstraint(Sketcher.Constraint("Coincident", 0, 2, 1, 1))
sketch13.addConstraint(Sketcher.Constraint("Tangent", 1, 2, 2, 2))
sketch13.addConstraint(Sketcher.Constraint("Tangent", 2, 1, 3, 1))
sketch13.addConstraint(Sketcher.Constraint("Tangent", 3, 2, 4, 2))
sketch13.addConstraint(Sketcher.Constraint("Tangent", 4, 1, 5, 1))
sketch13.addConstraint(Sketcher.Constraint("Coincident", 5, 2, 6, 1))
sketch13.addConstraint(Sketcher.Constraint("Tangent", 6, 2, 7, 2))
sketch13.addConstraint(Sketcher.Constraint("Tangent", 7, 1, 8, 1))
sketch13.addConstraint(Sketcher.Constraint("Tangent", 8, 2, 9, 1))
sketch13.addConstraint(Sketcher.Constraint("Tangent", 9, 2, 10, 1))
sketch13.addConstraint(Sketcher.Constraint("Tangent", 10, 2, 11, 1))
sketch13.addConstraint(Sketcher.Constraint("Tangent", 11, 2, 12, 1))
sketch13.addConstraint(Sketcher.Constraint("Tangent", 12, 2, 13, 2))
sketch13.addConstraint(Sketcher.Constraint("Tangent", 13, 1, 0, 1))
sketch13.addConstraint(Sketcher.Constraint("Vertical", 0))
sketch13.addConstraint(Sketcher.Constraint("Horizontal", 1))
sketch13.addConstraint(Sketcher.Constraint("Vertical", 3))
sketch13.addConstraint(Sketcher.Constraint("Horizontal", 5))
sketch13.addConstraint(Sketcher.Constraint("Vertical", 6))
sketch13.addConstraint(Sketcher.Constraint("Horizontal", 8))
sketch13.addConstraint(Sketcher.Constraint("Vertical", 10))
sketch13.addConstraint(Sketcher.Constraint("Horizontal", 12))
sketch13.addConstraint(Sketcher.Constraint("Equal", 2, 4))
sketch13.addConstraint(Sketcher.Constraint("Equal", 4, 7))
sketch13.addConstraint(Sketcher.Constraint("Equal", 9, 11))
sketch13.addConstraint(Sketcher.Constraint("Equal", 7, 13))
sketch13.addConstraint(Sketcher.Constraint("Vertical", 7, 3, 13, 3))
sketch13.addConstraint(Sketcher.Constraint("Equal", 0, 6))
sketch13.addConstraint(Sketcher.Constraint("Radius", 2, 3.0))
sketch13.addConstraint(Sketcher.Constraint("Radius", 9, 2.0))
sketch13.addConstraint(Sketcher.Constraint("DistanceY", 0, 1, 0, 2, 2.0))
sketch13.addConstraint(Sketcher.Constraint("DistanceY", 3, 2, 3, 1, 26.0))
sketch13.addConstraint(Sketcher.Constraint("DistanceX", 1, 1, 1, 2, 12.5))
sketch13.addConstraint(Sketcher.Constraint("DistanceX", 8, 1, 8, 2, 5.5))
sketch13.addConstraint(Sketcher.Constraint("DistanceX", -1, 1, 7, 3, 22.0))
sketch13.addConstraint(Sketcher.Constraint("DistanceY", -1, 1, 2, 3, 10.64))
doc.recompute()

subtractivepipe2 = doc.addObject("PartDesign::SubtractivePipe", "SubtractivePipe001")
body.addObject(subtractivepipe2)
subtractivepipe2.Profile = sketch12
subtractivepipe2.Spine = (sketch13, ["Edge1", "Edge2", "Edge3", "Edge4", "Edge5", "Edge6", "Edge7", "Edge8", "Edge9", "Edge10", "Edge11", "Edge12", "Edge13", "Edge14"])
subtractivepipe2.Transition = "Right corner"

doc.recompute()
